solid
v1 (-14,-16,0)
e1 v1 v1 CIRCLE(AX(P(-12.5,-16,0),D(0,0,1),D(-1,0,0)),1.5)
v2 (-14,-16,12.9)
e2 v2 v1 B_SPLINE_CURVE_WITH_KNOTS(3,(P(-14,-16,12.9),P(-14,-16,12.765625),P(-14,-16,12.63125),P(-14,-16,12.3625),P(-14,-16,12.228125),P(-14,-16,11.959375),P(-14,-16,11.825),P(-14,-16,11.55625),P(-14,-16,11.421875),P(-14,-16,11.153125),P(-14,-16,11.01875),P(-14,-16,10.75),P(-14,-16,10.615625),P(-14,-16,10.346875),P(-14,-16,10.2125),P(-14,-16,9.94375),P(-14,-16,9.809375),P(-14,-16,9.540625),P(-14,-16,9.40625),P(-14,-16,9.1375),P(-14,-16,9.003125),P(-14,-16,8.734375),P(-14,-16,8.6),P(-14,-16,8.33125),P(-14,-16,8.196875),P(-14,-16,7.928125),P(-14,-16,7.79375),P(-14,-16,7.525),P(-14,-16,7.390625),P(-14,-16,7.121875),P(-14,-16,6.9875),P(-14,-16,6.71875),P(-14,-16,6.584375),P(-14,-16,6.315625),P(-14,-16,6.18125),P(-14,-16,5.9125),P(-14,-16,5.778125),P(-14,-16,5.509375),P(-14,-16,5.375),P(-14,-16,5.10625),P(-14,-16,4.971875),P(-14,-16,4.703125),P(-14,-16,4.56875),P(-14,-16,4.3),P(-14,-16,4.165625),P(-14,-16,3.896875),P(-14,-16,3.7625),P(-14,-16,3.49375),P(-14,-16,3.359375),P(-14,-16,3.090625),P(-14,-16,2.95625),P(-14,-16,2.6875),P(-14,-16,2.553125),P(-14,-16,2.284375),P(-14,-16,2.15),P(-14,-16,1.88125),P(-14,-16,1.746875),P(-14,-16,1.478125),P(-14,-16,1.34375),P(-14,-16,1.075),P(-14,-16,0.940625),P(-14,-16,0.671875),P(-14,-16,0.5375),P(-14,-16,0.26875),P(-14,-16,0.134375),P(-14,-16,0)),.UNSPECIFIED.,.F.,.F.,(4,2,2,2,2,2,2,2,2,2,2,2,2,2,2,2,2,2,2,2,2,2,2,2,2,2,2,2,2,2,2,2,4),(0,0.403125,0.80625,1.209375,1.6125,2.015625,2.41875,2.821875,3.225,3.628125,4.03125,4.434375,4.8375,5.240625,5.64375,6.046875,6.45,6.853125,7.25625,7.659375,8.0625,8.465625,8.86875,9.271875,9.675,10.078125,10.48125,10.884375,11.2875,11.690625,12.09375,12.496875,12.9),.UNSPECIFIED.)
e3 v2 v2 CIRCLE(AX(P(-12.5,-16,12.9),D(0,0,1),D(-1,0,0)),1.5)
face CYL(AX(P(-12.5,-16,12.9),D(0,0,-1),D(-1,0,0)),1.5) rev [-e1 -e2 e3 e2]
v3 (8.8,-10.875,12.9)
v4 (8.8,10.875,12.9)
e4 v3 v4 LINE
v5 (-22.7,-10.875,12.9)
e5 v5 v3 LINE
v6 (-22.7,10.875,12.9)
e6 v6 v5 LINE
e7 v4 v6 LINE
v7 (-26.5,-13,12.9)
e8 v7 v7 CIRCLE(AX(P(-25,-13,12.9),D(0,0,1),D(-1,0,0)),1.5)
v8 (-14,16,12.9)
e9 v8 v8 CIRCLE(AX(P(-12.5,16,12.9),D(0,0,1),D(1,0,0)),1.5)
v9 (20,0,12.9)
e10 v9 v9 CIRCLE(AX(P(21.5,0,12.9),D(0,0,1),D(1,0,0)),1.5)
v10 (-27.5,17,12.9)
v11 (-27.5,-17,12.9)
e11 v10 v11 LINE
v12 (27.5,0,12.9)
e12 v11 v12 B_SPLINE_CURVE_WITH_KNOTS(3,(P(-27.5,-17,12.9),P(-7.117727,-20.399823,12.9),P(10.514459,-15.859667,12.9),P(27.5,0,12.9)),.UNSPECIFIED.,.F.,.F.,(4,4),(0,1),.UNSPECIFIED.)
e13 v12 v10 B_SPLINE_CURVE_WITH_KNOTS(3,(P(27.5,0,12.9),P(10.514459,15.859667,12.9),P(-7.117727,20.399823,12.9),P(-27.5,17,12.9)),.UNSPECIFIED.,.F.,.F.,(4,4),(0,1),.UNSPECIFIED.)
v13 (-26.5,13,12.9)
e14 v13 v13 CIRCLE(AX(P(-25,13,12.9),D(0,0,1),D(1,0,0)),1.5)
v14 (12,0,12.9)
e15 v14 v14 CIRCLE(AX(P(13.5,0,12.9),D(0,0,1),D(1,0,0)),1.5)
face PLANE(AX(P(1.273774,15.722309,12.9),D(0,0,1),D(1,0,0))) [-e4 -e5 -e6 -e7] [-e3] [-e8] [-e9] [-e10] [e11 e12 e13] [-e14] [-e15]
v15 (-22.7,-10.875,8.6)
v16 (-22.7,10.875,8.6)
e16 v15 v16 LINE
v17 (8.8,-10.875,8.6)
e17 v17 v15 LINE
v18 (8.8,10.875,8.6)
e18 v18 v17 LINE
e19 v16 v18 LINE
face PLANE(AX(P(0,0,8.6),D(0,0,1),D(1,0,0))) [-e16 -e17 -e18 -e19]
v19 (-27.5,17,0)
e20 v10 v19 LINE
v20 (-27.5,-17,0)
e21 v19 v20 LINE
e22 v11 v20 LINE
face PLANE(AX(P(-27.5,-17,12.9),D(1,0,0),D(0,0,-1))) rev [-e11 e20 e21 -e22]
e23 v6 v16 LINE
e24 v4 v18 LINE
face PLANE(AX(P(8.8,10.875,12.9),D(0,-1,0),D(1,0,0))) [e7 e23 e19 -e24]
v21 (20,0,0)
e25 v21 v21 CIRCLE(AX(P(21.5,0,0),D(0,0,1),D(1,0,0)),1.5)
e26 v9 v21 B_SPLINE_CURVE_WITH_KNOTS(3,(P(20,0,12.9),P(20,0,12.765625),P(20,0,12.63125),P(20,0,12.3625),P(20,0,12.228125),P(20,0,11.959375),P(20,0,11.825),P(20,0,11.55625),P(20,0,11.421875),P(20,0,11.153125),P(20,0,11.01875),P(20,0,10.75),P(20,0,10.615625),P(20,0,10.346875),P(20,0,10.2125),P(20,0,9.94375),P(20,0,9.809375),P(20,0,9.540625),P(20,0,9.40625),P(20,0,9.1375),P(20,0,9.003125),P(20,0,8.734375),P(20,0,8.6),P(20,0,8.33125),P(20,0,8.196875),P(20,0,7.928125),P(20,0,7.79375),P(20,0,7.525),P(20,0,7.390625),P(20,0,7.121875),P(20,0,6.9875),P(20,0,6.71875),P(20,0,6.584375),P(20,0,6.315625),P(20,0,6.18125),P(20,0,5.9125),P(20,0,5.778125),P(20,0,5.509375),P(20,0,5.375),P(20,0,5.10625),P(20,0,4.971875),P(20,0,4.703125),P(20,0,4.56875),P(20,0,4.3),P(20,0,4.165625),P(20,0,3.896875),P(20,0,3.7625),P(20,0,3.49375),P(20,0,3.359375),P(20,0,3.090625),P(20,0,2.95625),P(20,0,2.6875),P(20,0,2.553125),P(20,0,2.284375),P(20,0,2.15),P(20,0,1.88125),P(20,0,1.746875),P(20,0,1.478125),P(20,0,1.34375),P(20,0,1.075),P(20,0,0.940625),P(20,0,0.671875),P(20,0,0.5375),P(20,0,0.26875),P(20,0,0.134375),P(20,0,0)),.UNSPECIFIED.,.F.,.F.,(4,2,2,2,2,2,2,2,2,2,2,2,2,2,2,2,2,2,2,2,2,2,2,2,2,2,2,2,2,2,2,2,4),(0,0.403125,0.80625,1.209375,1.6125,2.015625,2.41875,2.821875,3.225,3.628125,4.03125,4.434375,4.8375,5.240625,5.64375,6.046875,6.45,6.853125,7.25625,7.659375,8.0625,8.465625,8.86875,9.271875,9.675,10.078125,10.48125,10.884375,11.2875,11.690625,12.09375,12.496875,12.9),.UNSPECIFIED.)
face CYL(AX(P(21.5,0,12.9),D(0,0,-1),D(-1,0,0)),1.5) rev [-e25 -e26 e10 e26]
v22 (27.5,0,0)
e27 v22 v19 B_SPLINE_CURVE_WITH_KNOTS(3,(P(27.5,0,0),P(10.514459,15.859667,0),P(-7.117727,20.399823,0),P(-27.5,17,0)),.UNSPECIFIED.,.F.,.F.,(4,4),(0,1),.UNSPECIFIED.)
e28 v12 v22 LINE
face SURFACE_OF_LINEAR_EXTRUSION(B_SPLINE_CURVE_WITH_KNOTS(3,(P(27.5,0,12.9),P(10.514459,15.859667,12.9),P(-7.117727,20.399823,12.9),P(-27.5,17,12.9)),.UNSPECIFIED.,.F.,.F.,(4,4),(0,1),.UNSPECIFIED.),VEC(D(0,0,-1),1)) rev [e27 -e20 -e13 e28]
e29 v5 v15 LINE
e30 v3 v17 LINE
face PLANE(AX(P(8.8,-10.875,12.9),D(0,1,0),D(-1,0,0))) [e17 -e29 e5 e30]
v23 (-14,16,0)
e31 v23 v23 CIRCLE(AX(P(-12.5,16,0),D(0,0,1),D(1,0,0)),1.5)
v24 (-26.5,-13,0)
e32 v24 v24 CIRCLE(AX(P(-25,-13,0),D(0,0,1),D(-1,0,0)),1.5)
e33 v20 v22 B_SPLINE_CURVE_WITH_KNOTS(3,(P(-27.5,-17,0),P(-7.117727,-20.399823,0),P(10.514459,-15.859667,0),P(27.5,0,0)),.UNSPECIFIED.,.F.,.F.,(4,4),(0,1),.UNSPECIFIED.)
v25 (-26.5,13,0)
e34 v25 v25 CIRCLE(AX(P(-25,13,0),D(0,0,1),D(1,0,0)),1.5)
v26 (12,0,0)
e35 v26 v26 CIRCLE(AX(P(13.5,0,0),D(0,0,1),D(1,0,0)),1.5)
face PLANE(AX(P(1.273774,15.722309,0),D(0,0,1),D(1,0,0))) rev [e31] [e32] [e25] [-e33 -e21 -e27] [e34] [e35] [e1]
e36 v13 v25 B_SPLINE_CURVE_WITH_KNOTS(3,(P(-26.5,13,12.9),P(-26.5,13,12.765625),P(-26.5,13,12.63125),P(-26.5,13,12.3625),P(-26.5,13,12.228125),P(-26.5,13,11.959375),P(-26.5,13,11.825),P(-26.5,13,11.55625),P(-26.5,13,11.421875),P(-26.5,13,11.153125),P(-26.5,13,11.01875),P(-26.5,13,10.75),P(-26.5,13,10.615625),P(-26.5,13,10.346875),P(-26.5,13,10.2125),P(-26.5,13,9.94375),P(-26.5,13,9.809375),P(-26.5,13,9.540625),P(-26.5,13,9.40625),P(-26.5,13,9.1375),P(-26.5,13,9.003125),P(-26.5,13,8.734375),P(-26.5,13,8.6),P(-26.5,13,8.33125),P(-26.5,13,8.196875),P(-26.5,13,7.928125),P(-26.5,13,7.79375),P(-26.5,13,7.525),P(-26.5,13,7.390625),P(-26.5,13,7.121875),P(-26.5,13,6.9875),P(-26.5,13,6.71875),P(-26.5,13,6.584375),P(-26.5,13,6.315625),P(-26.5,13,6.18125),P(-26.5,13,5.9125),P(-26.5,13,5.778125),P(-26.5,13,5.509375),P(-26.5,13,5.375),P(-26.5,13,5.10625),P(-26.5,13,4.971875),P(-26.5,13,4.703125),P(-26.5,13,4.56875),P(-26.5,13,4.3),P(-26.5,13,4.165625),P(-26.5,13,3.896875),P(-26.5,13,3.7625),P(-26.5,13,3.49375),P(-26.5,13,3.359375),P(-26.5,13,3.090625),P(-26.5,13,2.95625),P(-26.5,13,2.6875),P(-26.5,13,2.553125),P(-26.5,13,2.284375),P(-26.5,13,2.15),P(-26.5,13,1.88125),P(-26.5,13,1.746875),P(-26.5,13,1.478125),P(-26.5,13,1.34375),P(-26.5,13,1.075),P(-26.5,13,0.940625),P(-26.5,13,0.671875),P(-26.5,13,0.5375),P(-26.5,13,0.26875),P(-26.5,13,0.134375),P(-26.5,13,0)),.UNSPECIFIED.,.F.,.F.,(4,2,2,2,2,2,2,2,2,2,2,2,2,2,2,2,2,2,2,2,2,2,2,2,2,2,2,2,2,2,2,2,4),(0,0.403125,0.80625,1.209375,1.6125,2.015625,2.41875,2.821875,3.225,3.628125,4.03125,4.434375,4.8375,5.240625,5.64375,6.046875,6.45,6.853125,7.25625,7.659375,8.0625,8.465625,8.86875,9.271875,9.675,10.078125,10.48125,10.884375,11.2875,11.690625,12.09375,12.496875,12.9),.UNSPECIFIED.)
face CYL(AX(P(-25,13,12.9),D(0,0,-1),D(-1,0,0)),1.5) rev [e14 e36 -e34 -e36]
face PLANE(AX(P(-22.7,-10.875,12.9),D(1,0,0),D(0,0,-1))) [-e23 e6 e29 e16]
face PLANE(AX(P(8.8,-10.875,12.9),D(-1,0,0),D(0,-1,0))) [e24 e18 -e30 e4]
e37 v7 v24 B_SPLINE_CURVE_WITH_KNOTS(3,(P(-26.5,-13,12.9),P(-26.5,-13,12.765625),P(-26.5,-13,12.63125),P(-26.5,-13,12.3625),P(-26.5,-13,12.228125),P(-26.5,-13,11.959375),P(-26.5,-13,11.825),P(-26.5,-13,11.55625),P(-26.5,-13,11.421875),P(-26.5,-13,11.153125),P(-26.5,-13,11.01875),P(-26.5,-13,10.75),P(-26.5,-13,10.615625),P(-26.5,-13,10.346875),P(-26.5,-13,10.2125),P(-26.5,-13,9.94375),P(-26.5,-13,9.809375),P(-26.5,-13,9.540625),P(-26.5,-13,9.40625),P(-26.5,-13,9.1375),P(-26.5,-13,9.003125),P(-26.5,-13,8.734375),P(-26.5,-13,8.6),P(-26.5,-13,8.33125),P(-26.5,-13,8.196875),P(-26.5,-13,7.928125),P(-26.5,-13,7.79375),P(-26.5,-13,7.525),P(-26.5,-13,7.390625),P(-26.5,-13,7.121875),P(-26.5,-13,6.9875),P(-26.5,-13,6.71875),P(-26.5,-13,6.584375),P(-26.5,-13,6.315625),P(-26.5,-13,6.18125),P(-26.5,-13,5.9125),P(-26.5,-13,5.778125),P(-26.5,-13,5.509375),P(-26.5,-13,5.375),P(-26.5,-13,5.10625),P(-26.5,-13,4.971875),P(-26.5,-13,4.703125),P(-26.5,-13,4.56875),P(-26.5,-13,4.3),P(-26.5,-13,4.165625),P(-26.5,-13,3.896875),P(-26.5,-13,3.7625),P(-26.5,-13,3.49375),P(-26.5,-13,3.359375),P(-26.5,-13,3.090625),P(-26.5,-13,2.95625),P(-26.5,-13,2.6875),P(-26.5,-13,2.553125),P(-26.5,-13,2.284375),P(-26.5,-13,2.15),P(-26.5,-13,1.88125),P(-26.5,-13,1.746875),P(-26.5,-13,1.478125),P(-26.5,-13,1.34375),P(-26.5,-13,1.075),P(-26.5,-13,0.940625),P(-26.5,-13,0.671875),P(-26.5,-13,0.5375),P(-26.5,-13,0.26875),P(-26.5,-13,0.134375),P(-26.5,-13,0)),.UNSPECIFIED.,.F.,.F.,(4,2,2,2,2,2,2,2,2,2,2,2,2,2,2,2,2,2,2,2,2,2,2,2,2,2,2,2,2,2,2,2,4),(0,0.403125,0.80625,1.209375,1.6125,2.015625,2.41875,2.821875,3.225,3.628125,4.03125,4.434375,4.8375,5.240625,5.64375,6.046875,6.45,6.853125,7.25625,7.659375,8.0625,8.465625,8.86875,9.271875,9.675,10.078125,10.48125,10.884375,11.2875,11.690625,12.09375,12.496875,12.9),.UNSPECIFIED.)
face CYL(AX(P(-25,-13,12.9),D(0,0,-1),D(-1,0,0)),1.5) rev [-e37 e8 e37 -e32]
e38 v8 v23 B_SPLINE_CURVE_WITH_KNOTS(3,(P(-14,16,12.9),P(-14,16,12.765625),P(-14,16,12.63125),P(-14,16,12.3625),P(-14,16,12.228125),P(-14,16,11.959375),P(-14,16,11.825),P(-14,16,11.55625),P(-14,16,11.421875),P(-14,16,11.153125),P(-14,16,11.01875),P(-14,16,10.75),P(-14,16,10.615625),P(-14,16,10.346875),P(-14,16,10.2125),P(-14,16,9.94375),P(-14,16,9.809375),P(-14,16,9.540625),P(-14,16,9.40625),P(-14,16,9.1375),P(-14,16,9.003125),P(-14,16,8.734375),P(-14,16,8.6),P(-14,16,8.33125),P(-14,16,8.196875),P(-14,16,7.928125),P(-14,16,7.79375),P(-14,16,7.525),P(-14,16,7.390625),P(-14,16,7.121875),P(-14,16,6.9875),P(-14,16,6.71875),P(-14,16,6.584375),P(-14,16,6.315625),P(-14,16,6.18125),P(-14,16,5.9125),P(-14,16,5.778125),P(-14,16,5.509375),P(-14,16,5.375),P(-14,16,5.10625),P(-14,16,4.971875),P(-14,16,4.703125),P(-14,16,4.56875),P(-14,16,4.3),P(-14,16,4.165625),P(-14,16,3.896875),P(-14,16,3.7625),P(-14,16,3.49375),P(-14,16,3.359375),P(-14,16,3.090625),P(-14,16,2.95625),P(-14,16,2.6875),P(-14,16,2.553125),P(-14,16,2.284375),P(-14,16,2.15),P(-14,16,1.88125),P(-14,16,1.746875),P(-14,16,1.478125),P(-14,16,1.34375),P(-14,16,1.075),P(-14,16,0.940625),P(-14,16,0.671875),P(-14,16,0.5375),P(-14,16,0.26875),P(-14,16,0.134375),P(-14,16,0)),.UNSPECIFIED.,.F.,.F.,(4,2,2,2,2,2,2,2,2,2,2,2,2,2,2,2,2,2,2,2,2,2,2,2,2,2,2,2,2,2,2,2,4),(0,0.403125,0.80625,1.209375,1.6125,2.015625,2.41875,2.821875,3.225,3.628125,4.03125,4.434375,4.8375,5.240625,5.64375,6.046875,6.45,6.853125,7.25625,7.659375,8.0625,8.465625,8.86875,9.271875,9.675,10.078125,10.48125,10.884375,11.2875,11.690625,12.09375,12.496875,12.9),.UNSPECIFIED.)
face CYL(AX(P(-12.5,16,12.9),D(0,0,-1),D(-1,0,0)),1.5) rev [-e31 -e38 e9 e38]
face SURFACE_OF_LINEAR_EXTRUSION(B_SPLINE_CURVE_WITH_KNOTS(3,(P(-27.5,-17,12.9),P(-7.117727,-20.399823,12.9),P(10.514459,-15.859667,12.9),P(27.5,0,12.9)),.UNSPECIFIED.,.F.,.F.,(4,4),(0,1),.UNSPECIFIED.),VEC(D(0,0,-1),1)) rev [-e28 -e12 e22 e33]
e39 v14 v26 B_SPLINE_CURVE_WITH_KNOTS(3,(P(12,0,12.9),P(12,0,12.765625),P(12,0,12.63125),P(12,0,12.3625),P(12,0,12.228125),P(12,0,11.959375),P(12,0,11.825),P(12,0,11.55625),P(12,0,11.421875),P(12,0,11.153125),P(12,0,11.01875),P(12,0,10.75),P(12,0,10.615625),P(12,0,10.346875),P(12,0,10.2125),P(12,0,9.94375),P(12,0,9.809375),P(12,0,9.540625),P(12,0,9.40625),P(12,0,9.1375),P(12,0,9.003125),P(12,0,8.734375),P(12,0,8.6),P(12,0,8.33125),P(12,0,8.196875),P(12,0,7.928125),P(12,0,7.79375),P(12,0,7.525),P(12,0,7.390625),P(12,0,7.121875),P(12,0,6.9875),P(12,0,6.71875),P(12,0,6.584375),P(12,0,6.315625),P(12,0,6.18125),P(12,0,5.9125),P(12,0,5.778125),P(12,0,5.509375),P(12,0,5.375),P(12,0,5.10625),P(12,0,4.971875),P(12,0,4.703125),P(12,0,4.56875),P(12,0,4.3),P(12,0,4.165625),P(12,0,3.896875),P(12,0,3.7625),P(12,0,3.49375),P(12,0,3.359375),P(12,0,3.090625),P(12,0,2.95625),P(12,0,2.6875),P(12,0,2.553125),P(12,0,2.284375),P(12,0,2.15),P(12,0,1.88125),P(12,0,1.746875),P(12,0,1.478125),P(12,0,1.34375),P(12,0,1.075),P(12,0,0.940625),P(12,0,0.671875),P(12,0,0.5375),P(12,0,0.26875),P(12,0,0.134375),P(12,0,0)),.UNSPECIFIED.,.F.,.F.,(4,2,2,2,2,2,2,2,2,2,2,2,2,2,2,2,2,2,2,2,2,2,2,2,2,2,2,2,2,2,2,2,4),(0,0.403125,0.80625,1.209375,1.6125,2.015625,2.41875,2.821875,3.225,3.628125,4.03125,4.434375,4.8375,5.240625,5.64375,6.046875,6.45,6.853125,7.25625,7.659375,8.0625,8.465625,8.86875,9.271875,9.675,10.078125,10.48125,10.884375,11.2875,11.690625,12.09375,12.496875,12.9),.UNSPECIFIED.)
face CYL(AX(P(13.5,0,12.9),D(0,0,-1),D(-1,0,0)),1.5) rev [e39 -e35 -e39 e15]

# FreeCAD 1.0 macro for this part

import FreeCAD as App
import Part
import Sketcher
from FreeCAD import Vector

doc = App.newDocument("Part")
body = doc.addObject("PartDesign::Body", "Body")

# Sketch on XY plane
sketch1 = body.newObject("Sketcher::SketchObject", "Sketch")
sketch1.AttachmentSupport = (doc.getObject("XY_Plane"), [""])
sketch1.MapMode = "FlatFace"
sketch1.addGeometry([
    Part.LineSegment(Vector(-27.5, 17, 0), Vector(-27.5, -17, 0)),  # 0
    Part.BSplineCurve([Vector(-27.5, -17, 0), Vector(-7.117727, -20.399823, 0), Vector(10.514459, -15.859667, 0), Vector(27.5, 0, 0)], [4, 4], [0, 1], False, 3, [1, 1, 1, 1], False),  # 1
    Part.BSplineCurve([Vector(-27.5, 17, 0), Vector(-7.117727, 20.399823, 0), Vector(10.514459, 15.859667, 0), Vector(27.5, 0, 0)], [4, 4], [0, 1], False, 3, [1, 1, 1, 1], False),  # 2
    Part.Circle(Vector(-12.5, -16, 0), Vector(0, 0, 1), 1.5),  # 3
    Part.Circle(Vector(-25, -13, 0), Vector(0, 0, 1), 1.5),  # 4
    Part.Circle(Vector(21.5, 0, 0), Vector(0, 0, 1), 1.5),  # 5
    Part.Circle(Vector(13.5, 0, 0), Vector(0, 0, 1), 1.5),  # 6
    Part.LineSegment(Vector(-22.7, -10.875, 0), Vector(-22.7, 10.875, 0)),  # 7
    Part.LineSegment(Vector(-22.7, 10.875, 0), Vector(8.8, 10.875, 0)),  # 8
    Part.LineSegment(Vector(8.8, 10.875, 0), Vector(8.8, -10.875, 0)),  # 9
    Part.LineSegment(Vector(8.8, -10.875, 0), Vector(-22.7, -10.875, 0)),  # 10
    Part.Circle(Vector(-12.5, 16, 0), Vector(0, 0, 1), 1.5),  # 11
    Part.Circle(Vector(-25, 13, 0), Vector(0, 0, 1), 1.5),  # 12
], False)
sketch1.addConstraint([
    Sketcher.Constraint("Block", 1),
    Sketcher.Constraint("Block", 2),
    Sketcher.Constraint("Coincident", 0, 2, 1, 1),
    Sketcher.Constraint("Coincident", 2, 1, 0, 1),
    Sketcher.Constraint("Coincident", 7, 2, 8, 1),
    Sketcher.Constraint("Coincident", 8, 2, 9, 1),
    Sketcher.Constraint("Coincident", 9, 2, 10, 1),
    Sketcher.Constraint("Coincident", 10, 2, 7, 1),
    Sketcher.Constraint("Vertical", 7),
    Sketcher.Constraint("Horizontal", 8),
    Sketcher.Constraint("Vertical", 9),
    Sketcher.Constraint("Horizontal", 10),
    Sketcher.Constraint("Equal", 3, 4),
    Sketcher.Constraint("Equal", 4, 5),
    Sketcher.Constraint("Equal", 5, 6),
    Sketcher.Constraint("Equal", 6, 11),
    Sketcher.Constraint("Equal", 11, 12),
    Sketcher.Constraint("Symmetric", 3, 3, 11, 3, -1),
    Sketcher.Constraint("Symmetric", 4, 3, 12, 3, -1),
    Sketcher.Constraint("PointOnObject", 5, 3, -1),
    Sketcher.Constraint("PointOnObject", 6, 3, -1),
    Sketcher.Constraint("Diameter", 3, 3.0),
    Sketcher.Constraint("DistanceX", 8, 1, 8, 2, 31.5),
    Sketcher.Constraint("DistanceY", 3, 3, -1, 1, 16.0),
    Sketcher.Constraint("DistanceX", 4, 3, -1, 1, 25.0),
    Sketcher.Constraint("DistanceY", 4, 3, -1, 1, 13.0),
    Sketcher.Constraint("DistanceX", 3, 3, 5, 3, 34.0),
    Sketcher.Constraint("DistanceX", 6, 3, 5, 3, 8.0),
    Sketcher.Constraint("DistanceX", 0, 2, 3, 3, 15.0),
    Sketcher.Constraint("DistanceY", 7, 1, 7, 2, 21.75),
    Sketcher.Constraint("DistanceX", 7, 2, -1, 1, 22.7),
    Sketcher.Constraint("DistanceY", -1, 1, 7, 2, 10.875),
])
pad1 = body.newObject("PartDesign::Pad", "Pad")
pad1.Profile = sketch1
pad1.Length = 12.9

# Sketch on XY plane
sketch2 = body.newObject("Sketcher::SketchObject", "Sketch001")
sketch2.AttachmentSupport = (doc.getObject("XY_Plane"), [""])
sketch2.MapMode = "FlatFace"
sketch2.addGeometry([
    Part.LineSegment(Vector(9, 11, 0), Vector(9, -11, 0)),
    Part.LineSegment(Vector(9, -11, 0), Vector(-23, -11, 0)),
    Part.LineSegment(Vector(-23, -11, 0), Vector(-23, 11, 0)),
    Part.LineSegment(Vector(-23, 11, 0), Vector(9, 11, 0)),
], False)
sketch2.addConstraint([
    Sketcher.Constraint("Coincident", 0, 2, 1, 1),
    Sketcher.Constraint("Coincident", 1, 2, 2, 1),
    Sketcher.Constraint("Coincident", 2, 2, 3, 1),
    Sketcher.Constraint("Coincident", 3, 2, 0, 1),
    Sketcher.Constraint("Vertical", 0),
    Sketcher.Constraint("Horizontal", 1),
    Sketcher.Constraint("Vertical", 2),
    Sketcher.Constraint("Horizontal", 3),
    Sketcher.Constraint("DistanceX", 1, 2, 1, 1, 31.5),
    Sketcher.Constraint("DistanceY", 0, 2, 0, 1, 21.75),
    Sketcher.Constraint("DistanceX", -1, 1, 0, 2, 8.8),
    Sketcher.Constraint("DistanceY", 0, 2, -1, 1, 10.875),
])
pad2 = body.newObject("PartDesign::Pad", "Pad001")
pad2.Profile = sketch2
pad2.Length = 8.6

doc.recompute()
